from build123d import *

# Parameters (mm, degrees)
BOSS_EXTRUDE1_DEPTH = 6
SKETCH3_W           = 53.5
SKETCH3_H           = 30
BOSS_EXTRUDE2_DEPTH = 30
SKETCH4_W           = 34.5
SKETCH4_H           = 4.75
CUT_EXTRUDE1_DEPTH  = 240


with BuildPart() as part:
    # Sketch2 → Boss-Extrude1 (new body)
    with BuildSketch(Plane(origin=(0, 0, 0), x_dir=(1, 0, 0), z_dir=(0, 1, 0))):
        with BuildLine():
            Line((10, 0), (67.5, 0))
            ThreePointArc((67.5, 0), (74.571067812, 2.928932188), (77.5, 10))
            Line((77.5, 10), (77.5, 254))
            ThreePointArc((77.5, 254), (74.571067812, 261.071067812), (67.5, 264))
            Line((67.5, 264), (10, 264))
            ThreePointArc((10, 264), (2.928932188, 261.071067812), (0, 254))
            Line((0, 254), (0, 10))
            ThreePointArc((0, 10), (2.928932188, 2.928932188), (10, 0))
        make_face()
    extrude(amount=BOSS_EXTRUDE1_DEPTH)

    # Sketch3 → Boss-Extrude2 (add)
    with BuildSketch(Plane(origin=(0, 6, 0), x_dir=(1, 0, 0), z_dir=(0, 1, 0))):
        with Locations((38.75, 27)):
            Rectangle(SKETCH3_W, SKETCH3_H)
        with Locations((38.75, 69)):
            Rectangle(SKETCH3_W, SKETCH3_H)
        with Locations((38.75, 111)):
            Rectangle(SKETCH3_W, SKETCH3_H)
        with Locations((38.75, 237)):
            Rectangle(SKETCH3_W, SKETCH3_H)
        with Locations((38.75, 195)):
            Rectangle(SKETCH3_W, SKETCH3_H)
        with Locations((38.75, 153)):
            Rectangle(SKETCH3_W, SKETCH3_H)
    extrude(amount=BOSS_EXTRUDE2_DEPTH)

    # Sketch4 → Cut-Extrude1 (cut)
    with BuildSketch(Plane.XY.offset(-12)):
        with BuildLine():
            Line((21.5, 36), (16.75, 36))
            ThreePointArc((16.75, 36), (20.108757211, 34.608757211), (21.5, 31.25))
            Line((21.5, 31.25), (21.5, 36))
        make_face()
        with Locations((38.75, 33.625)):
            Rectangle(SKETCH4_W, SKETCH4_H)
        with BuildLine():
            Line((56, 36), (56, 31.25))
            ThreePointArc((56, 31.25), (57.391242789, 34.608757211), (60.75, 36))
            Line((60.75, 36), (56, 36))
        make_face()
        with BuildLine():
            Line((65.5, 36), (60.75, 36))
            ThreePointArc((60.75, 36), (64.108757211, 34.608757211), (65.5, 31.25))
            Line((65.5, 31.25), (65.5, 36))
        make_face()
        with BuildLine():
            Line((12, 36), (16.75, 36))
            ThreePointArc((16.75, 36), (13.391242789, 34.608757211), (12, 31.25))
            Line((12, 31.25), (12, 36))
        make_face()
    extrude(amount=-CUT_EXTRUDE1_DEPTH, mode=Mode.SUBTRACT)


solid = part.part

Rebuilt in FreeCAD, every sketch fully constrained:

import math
import FreeCAD as App
import Part
import Sketcher


def add_polygon(sketch, points):
    """Adds a closed chain of lines whose ends are joined by coincident constraints."""
    first, n = sketch.GeometryCount, len(points)
    for a, b in zip(points, points[1:] + points[:1]):
        sketch.addGeometry(Part.LineSegment(App.Vector(*a, 0), App.Vector(*b, 0)), False)
    for i in range(n):
        sketch.addConstraint(Sketcher.Constraint("Coincident", first + i, 2, first + (i + 1) % n, 1))

doc = App.newDocument("Part")
body = doc.addObject("PartDesign::Body", "Body")

sketch1 = body.newObject("Sketcher::SketchObject", "Sketch")
sketch1.AttachmentSupport = (doc.getObject("XZ_Plane"), [""])
sketch1.MapMode = "FlatFace"
sketch1.addGeometry(Part.LineSegment(App.Vector(10, 0, 0), App.Vector(68, 0, 0)), False)
sketch1.addGeometry(Part.ArcOfCircle(Part.Circle(App.Vector(68, -10, 0), App.Vector(0, 0, 1), 10), math.radians(0), math.radians(90)), False)
sketch1.addGeometry(Part.LineSegment(App.Vector(78, -10, 0), App.Vector(78, -254, 0)), False)
sketch1.addGeometry(Part.ArcOfCircle(Part.Circle(App.Vector(68, -254, 0), App.Vector(0, 0, 1), 10), math.radians(-90), math.radians(0)), False)
sketch1.addGeometry(Part.LineSegment(App.Vector(68, -264, 0), App.Vector(10, -264, 0)), False)
sketch1.addGeometry(Part.ArcOfCircle(Part.Circle(App.Vector(10, -254, 0), App.Vector(0, 0, 1), 10), math.radians(180), math.radians(270)), False)
sketch1.addGeometry(Part.LineSegment(App.Vector(0, -254, 0), App.Vector(0, -10, 0)), False)
sketch1.addGeometry(Part.ArcOfCircle(Part.Circle(App.Vector(10, -10, 0), App.Vector(0, 0, 1), 10), math.radians(90), math.radians(180)), False)
sketch1.addConstraint(Sketcher.Constraint("Tangent", 0, 2, 1, 2))
sketch1.addConstraint(Sketcher.Constraint("Tangent", 1, 1, 2, 1))
sketch1.addConstraint(Sketcher.Constraint("Tangent", 2, 2, 3, 2))
sketch1.addConstraint(Sketcher.Constraint("Tangent", 3, 1, 4, 1))
sketch1.addConstraint(Sketcher.Constraint("Tangent", 4, 2, 5, 2))
sketch1.addConstraint(Sketcher.Constraint("Tangent", 5, 1, 6, 1))
sketch1.addConstraint(Sketcher.Constraint("Tangent", 6, 2, 7, 2))
sketch1.addConstraint(Sketcher.Constraint("Tangent", 7, 1, 0, 1))
sketch1.addConstraint(Sketcher.Constraint("Horizontal", 0))
sketch1.addConstraint(Sketcher.Constraint("Vertical", 2))
sketch1.addConstraint(Sketcher.Constraint("Horizontal", 4))
sketch1.addConstraint(Sketcher.Constraint("Vertical", 6))
sketch1.addConstraint(Sketcher.Constraint("Equal", 1, 3))
sketch1.addConstraint(Sketcher.Constraint("Equal", 3, 5))
sketch1.addConstraint(Sketcher.Constraint("Equal", 5, 7))
sketch1.addConstraint(Sketcher.Constraint("PointOnObject", 0, 2, -1))
sketch1.addConstraint(Sketcher.Constraint("PointOnObject", 5, 1, -2))
sketch1.addConstraint(Sketcher.Constraint("Radius", 1, 10.0))
sketch1.addConstraint(Sketcher.Constraint("DistanceY", 2, 2, 2, 1, 244.0))
sketch1.addConstraint(Sketcher.Constraint("DistanceX", 0, 1, 0, 2, 57.5))
pad1 = body.newObject("PartDesign::Pad", "Pad")
pad1.Profile = sketch1
pad1.Length = 6
pad1.Reversed = True

sketch2 = body.newObject("Sketcher::SketchObject", "Sketch001")
sketch2.AttachmentSupport = (doc.getObject("XZ_Plane"), [""])
sketch2.MapMode = "FlatFace"
sketch2.AttachmentOffset = App.Placement(App.Vector(0, 0, -6), App.Rotation())
add_polygon(sketch2, [(12, -42), (12, -12), (66, -12), (66, -42)])
add_polygon(sketch2, [(12, -84), (12, -54), (66, -54), (66, -84)])
add_polygon(sketch2, [(12, -126), (12, -96), (66, -96), (66, -126)])
add_polygon(sketch2, [(12, -252), (12, -222), (66, -222), (66, -252)])
add_polygon(sketch2, [(12, -210), (12, -180), (66, -180), (66, -210)])
add_polygon(sketch2, [(12, -168), (12, -138), (66, -138), (66, -168)])
sketch2.addConstraint(Sketcher.Constraint("Vertical", 0))
sketch2.addConstraint(Sketcher.Constraint("Horizontal", 1))
sketch2.addConstraint(Sketcher.Constraint("Vertical", 2))
sketch2.addConstraint(Sketcher.Constraint("Horizontal", 3))
sketch2.addConstraint(Sketcher.Constraint("Vertical", 4))
sketch2.addConstraint(Sketcher.Constraint("Horizontal", 5))
sketch2.addConstraint(Sketcher.Constraint("Vertical", 6))
sketch2.addConstraint(Sketcher.Constraint("Horizontal", 7))
sketch2.addConstraint(Sketcher.Constraint("Vertical", 8))
sketch2.addConstraint(Sketcher.Constraint("Horizontal", 9))
sketch2.addConstraint(Sketcher.Constraint("Vertical", 10))
sketch2.addConstraint(Sketcher.Constraint("Horizontal", 11))
sketch2.addConstraint(Sketcher.Constraint("Vertical", 12))
sketch2.addConstraint(Sketcher.Constraint("Horizontal", 13))
sketch2.addConstraint(Sketcher.Constraint("Vertical", 14))
sketch2.addConstraint(Sketcher.Constraint("Horizontal", 15))
sketch2.addConstraint(Sketcher.Constraint("Vertical", 16))
sketch2.addConstraint(Sketcher.Constraint("Horizontal", 17))
sketch2.addConstraint(Sketcher.Constraint("Vertical", 18))
sketch2.addConstraint(Sketcher.Constraint("Horizontal", 19))
sketch2.addConstraint(Sketcher.Constraint("Vertical", 20))
sketch2.addConstraint(Sketcher.Constraint("Horizontal", 21))
sketch2.addConstraint(Sketcher.Constraint("Vertical", 22))
sketch2.addConstraint(Sketcher.Constraint("Horizontal", 23))
sketch2.addConstraint(Sketcher.Constraint("Vertical", 3, 2, 4, 2))
sketch2.addConstraint(Sketcher.Constraint("Vertical", 2, 2, 5, 2))
sketch2.addConstraint(Sketcher.Constraint("Vertical", 7, 2, 8, 2))
sketch2.addConstraint(Sketcher.Constraint("Vertical", 6, 2, 9, 2))
sketch2.addConstraint(Sketcher.Constraint("Vertical", 11, 2, 12, 2))
sketch2.addConstraint(Sketcher.Constraint("Vertical", 10, 2, 13, 2))
sketch2.addConstraint(Sketcher.Constraint("Vertical", 15, 2, 16, 2))
sketch2.addConstraint(Sketcher.Constraint("Vertical", 14, 2, 17, 2))
sketch2.addConstraint(Sketcher.Constraint("Vertical", 19, 2, 20, 2))
sketch2.addConstraint(Sketcher.Constraint("Vertical", 18, 2, 21, 2))
sketch2.addConstraint(Sketcher.Constraint("Equal", 2, 4))
sketch2.addConstraint(Sketcher.Constraint("Equal", 6, 8))
sketch2.addConstraint(Sketcher.Constraint("Equal", 10, 12))
sketch2.addConstraint(Sketcher.Constraint("Equal", 14, 16))
sketch2.addConstraint(Sketcher.Constraint("Equal", 18, 20))
sketch2.addConstraint(Sketcher.Constraint("DistanceY", 0, 1, 0, 2, 30.0))
sketch2.addConstraint(Sketcher.Constraint("DistanceX", 1, 1, 1, 2, 53.5))
sketch2.addConstraint(Sketcher.Constraint("DistanceX", -1, 1, 0, 2, 12.0))
sketch2.addConstraint(Sketcher.Constraint("DistanceY", 0, 2, -1, 1, 12.0))
sketch2.addConstraint(Sketcher.Constraint("DistanceY", 4, 2, -1, 1, 54.0))
sketch2.addConstraint(Sketcher.Constraint("DistanceY", 8, 2, -1, 1, 96.0))
sketch2.addConstraint(Sketcher.Constraint("DistanceY", 12, 2, -1, 1, 222.0))
sketch2.addConstraint(Sketcher.Constraint("DistanceY", 16, 2, -1, 1, 180.0))
sketch2.addConstraint(Sketcher.Constraint("DistanceY", 20, 2, -1, 1, 138.0))
pad2 = body.newObject("PartDesign::Pad", "Pad001")
pad2.Profile = sketch2
pad2.Length = 30
pad2.Reversed = True

sketch3 = body.newObject("Sketcher::SketchObject", "Sketch002")
sketch3.AttachmentSupport = (doc.getObject("XY_Plane"), [""])
sketch3.MapMode = "FlatFace"
sketch3.AttachmentOffset = App.Placement(App.Vector(0, 0, -12), App.Rotation())
sketch3.addGeometry(Part.ArcOfCircle(Part.Circle(App.Vector(16.8, 31.3, 0), App.Vector(0, 0, 1), 4.7), math.radians(0), math.radians(90)), False)
sketch3.addGeometry(Part.LineSegment(App.Vector(21.5, 31.2, 0), App.Vector(56, 31.2, 0)), False)
sketch3.addGeometry(Part.ArcOfCircle(Part.Circle(App.Vector(60.7, 31.3, 0), App.Vector(0, 0, 1), 4.7), math.radians(90), math.radians(180)), False)
sketch3.addGeometry(Part.LineSegment(App.Vector(60.8, 36, 0), App.Vector(16.8, 36, 0)), False)
sketch3.addGeometry(Part.LineSegment(App.Vector(65.5, 36, 0), App.Vector(60.8, 36, 0)), False)
sketch3.addGeometry(Part.ArcOfCircle(Part.Circle(App.Vector(60.8, 31.3, 0), App.Vector(0, 0, 1), 4.7), math.radians(0), math.radians(90)), False)
sketch3.addGeometry(Part.LineSegment(App.Vector(65.5, 31.2, 0), App.Vector(65.5, 36, 0)), False)
sketch3.addGeometry(Part.LineSegment(App.Vector(16.8, 36, 0), App.Vector(12, 36, 0)), False)
sketch3.addGeometry(Part.LineSegment(App.Vector(12, 36, 0), App.Vector(12, 31.2, 0)), False)
sketch3.addGeometry(Part.ArcOfCircle(Part.Circle(App.Vector(16.7, 31.3, 0), App.Vector(0, 0, 1), 4.7), math.radians(90), math.radians(180)), False)
sketch3.addConstraint(Sketcher.Constraint("Coincident", 0, 1, 1, 1))
sketch3.addConstraint(Sketcher.Constraint("Coincident", 1, 2, 2, 2))
sketch3.addConstraint(Sketcher.Constraint("Tangent", 2, 1, 3, 1))
sketch3.addConstraint(Sketcher.Constraint("Tangent", 3, 2, 0, 2))
sketch3.addConstraint(Sketcher.Constraint("Tangent", 4, 2, 5, 2))
sketch3.addConstraint(Sketcher.Constraint("Tangent", 5, 1, 6, 1))
sketch3.addConstraint(Sketcher.Constraint("Coincident", 6, 2, 4, 1))
sketch3.addConstraint(Sketcher.Constraint("Coincident", 7, 2, 8, 1))
sketch3.addConstraint(Sketcher.Constraint("Tangent", 8, 2, 9, 2))
sketch3.addConstraint(Sketcher.Constraint("Tangent", 9, 1, 7, 1))
sketch3.addConstraint(Sketcher.Constraint("Horizontal", 1))
sketch3.addConstraint(Sketcher.Constraint("Horizontal", 3))
sketch3.addConstraint(Sketcher.Constraint("Horizontal", 4))
sketch3.addConstraint(Sketcher.Constraint("Vertical", 6))
sketch3.addConstraint(Sketcher.Constraint("Horizontal", 7))
sketch3.addConstraint(Sketcher.Constraint("Vertical", 8))
sketch3.addConstraint(Sketcher.Constraint("Coincident", 5, 3, 2, 3))
sketch3.addConstraint(Sketcher.Constraint("Coincident", 9, 3, 0, 3))
sketch3.addConstraint(Sketcher.Constraint("Equal", 0, 2))
sketch3.addConstraint(Sketcher.Constraint("Equal", 2, 5))
sketch3.addConstraint(Sketcher.Constraint("Equal", 5, 9))
sketch3.addConstraint(Sketcher.Constraint("Horizontal", 9, 3, 0, 1))
sketch3.addConstraint(Sketcher.Constraint("DistanceX", 3, 2, 3, 1, 44.0))
sketch3.addConstraint(Sketcher.Constraint("Radius", 0, 4.75))
sketch3.addConstraint(Sketcher.Constraint("DistanceX", -1, 1, 1, 2, 56.0))
sketch3.addConstraint(Sketcher.Constraint("DistanceY", -1, 1, 2, 1, 36.0))
pocket1 = body.newObject("PartDesign::Pocket", "Pocket")
pocket1.Profile = sketch3
pocket1.Length = 240

doc.recompute()
